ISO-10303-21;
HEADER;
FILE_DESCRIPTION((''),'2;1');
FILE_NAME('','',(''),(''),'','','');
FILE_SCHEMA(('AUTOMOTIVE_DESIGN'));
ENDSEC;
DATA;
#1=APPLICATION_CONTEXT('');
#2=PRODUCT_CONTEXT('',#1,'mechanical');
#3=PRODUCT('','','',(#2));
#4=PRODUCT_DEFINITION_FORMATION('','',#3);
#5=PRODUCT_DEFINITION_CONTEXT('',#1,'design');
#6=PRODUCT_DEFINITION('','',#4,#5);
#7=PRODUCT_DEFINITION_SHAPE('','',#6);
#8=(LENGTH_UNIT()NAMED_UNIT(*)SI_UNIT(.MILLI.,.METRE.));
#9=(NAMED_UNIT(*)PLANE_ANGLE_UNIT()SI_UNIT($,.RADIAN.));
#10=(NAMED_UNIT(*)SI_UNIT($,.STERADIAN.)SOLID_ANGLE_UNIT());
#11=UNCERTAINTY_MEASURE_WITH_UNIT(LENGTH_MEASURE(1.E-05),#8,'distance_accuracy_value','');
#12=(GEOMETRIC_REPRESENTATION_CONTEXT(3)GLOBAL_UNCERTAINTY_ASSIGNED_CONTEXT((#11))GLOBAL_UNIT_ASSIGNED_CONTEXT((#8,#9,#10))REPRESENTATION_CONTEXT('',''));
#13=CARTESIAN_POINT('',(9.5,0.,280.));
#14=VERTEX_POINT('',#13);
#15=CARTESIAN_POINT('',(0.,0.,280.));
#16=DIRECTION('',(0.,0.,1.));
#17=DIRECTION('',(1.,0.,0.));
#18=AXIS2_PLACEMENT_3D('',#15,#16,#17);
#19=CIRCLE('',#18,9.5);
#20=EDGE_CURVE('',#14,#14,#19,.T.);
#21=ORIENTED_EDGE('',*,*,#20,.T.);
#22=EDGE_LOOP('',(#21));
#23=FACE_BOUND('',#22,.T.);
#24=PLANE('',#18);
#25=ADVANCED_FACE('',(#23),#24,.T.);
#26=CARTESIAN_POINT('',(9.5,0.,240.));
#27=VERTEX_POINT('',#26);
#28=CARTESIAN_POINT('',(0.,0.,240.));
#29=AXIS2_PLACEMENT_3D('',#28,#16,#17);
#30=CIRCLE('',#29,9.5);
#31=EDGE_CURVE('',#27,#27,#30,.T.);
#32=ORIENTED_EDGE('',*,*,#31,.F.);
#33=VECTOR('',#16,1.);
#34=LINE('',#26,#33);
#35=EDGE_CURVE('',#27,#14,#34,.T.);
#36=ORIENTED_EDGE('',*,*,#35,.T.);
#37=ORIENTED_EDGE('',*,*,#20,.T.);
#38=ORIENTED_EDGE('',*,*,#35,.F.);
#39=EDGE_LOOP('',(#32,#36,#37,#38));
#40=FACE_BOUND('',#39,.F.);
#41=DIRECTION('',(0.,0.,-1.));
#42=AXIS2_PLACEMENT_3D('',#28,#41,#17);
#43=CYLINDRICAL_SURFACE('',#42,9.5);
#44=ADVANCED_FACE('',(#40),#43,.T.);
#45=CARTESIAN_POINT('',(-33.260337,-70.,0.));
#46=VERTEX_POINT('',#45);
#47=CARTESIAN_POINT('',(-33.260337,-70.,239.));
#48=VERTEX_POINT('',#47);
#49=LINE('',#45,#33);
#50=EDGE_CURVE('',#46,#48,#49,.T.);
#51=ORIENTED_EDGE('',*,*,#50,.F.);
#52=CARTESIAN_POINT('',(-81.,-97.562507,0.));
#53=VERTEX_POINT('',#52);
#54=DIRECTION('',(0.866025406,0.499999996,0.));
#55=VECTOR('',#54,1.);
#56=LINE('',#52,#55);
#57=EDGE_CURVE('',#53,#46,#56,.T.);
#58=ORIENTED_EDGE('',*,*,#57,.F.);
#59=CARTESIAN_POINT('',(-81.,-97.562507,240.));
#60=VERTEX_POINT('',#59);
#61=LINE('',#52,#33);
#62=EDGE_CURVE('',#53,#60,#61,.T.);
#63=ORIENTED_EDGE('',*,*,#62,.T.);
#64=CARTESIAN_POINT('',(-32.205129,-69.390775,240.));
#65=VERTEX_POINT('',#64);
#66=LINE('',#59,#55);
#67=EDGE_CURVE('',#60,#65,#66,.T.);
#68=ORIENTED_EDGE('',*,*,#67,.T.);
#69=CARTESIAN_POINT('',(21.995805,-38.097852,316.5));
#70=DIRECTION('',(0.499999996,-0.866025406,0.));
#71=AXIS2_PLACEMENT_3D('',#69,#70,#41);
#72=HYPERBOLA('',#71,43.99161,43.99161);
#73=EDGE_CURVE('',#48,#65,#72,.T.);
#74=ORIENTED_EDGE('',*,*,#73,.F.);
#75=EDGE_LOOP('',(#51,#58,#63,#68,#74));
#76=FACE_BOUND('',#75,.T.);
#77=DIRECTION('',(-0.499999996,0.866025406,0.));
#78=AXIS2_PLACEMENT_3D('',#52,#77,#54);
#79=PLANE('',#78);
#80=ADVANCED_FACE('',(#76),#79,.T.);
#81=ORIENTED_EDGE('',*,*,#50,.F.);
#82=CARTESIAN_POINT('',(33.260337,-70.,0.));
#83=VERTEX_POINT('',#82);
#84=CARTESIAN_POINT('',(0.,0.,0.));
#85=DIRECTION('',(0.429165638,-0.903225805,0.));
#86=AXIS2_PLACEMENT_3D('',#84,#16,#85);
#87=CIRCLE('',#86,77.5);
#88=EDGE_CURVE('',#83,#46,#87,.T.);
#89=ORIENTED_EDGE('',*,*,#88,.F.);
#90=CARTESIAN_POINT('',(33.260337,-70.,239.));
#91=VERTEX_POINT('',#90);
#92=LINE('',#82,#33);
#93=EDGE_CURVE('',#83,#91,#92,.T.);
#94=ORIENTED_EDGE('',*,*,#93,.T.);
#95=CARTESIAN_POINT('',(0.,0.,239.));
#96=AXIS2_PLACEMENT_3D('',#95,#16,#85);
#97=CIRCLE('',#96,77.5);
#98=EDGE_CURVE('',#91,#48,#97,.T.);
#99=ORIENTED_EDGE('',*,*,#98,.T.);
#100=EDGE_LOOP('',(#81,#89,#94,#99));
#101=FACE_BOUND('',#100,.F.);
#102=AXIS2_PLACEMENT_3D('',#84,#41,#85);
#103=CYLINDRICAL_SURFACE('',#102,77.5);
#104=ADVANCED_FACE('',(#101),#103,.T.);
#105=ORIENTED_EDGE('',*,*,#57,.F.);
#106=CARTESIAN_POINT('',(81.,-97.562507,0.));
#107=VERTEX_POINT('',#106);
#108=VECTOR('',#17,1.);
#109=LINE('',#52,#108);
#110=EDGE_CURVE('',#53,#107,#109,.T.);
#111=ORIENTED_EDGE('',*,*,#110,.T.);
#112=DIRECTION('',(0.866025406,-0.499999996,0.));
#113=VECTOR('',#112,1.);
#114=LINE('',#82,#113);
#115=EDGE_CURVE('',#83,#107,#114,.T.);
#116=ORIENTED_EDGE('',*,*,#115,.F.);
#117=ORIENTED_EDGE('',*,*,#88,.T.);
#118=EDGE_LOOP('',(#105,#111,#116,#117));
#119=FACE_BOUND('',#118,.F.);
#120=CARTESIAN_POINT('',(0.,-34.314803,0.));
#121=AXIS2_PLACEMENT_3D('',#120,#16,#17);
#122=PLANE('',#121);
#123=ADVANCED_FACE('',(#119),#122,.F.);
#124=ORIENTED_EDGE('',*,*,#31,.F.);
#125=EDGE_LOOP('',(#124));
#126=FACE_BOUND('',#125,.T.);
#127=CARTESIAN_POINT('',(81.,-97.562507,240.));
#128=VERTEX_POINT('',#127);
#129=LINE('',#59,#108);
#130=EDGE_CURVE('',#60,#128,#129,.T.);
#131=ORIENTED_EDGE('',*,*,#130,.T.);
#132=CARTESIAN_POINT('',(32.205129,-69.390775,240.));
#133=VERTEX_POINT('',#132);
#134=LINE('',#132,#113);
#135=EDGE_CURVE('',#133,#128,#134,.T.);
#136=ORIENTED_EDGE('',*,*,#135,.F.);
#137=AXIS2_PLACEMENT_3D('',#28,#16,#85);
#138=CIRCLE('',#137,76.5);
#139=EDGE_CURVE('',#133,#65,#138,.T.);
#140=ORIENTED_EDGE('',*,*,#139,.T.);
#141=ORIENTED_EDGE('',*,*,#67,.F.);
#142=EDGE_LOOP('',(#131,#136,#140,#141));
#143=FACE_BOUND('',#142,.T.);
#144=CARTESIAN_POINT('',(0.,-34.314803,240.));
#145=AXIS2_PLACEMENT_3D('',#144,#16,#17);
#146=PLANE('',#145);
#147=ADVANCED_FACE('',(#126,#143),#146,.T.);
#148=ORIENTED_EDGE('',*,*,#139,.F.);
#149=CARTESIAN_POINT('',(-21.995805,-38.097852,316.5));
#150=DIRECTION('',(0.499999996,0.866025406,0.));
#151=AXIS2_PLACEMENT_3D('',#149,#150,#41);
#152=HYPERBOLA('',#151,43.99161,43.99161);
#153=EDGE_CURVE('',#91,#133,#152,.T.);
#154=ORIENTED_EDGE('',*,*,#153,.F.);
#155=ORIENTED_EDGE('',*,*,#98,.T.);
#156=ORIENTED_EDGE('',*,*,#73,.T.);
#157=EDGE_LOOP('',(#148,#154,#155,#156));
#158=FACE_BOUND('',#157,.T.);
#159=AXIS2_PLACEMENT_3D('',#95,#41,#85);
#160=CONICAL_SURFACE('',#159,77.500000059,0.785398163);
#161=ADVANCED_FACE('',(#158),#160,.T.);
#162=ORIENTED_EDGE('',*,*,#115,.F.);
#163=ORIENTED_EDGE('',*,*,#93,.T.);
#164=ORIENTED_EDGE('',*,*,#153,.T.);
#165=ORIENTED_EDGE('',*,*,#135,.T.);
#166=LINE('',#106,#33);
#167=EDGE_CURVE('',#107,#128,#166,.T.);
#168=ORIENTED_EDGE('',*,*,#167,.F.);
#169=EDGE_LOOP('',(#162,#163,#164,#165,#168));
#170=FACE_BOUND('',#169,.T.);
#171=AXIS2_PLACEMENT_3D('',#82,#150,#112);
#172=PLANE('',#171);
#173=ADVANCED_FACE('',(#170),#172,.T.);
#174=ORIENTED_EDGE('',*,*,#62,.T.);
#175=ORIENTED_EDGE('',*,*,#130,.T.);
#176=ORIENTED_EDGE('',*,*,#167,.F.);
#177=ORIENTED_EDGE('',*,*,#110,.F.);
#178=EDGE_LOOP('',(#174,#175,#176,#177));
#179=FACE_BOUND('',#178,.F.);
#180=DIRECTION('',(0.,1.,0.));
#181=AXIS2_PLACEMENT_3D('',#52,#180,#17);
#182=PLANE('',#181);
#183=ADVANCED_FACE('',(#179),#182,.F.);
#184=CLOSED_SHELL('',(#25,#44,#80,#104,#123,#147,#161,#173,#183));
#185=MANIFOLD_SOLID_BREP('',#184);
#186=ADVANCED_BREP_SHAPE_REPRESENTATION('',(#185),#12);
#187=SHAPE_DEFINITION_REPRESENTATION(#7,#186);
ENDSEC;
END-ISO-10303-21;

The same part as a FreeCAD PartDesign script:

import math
import FreeCAD as App
import Part
import Sketcher
from FreeCAD import Vector
Q = App.Units.Quantity


def edges_at(feature, points):
    """Names of the edges that pass closest to the given points."""
    edges = feature.Shape.Edges
    near = lambda p: min(range(len(edges)), key=lambda i: edges[i].distToShape(Part.Vertex(*p))[0])
    return sorted({f"Edge{near(p) + 1}" for p in points})

doc = App.newDocument("Part")
body = doc.addObject("PartDesign::Body", "Body")

sketch1 = body.newObject("Sketcher::SketchObject", "Sketch")
sketch1.AttachmentSupport = (doc.getObject("XY_Plane"), [""])
sketch1.MapMode = "FlatFace"
sketch1.addGeometry(Part.ArcOfCircle(Part.Circle(Vector(0, 0, 0), Vector(0, 0, 1), 77.5), math.radians(-64.585379), math.radians(244.585379)), False)
sketch1.addGeometry(Part.LineSegment(Vector(-33.260337, -70, 0), Vector(-81, -97.562507, 0)), False)
sketch1.addGeometry(Part.LineSegment(Vector(-81, -97.562507, 0), Vector(81, -97.562507, 0)), False)
sketch1.addGeometry(Part.LineSegment(Vector(81, -97.562507, 0), Vector(33.260337, -70, 0)), False)
sketch1.addConstraint(Sketcher.Constraint("Coincident", 0, 2, 1, 1))
sketch1.addConstraint(Sketcher.Constraint("Coincident", 1, 2, 2, 1))
sketch1.addConstraint(Sketcher.Constraint("Coincident", 2, 2, 3, 1))
sketch1.addConstraint(Sketcher.Constraint("Coincident", 3, 2, 0, 1))
sketch1.addConstraint(Sketcher.Constraint("Horizontal", 2))
sketch1.addConstraint(Sketcher.Constraint("Coincident", 0, 3, -1, 1))
sketch1.addConstraint(Sketcher.Constraint("Horizontal", 0, 2, 3, 2))
sketch1.addConstraint(Sketcher.Constraint("Equal", 1, 3))
sketch1.addConstraint(Sketcher.Constraint("Radius", 0, 77.5))
sketch1.addConstraint(Sketcher.Constraint("DistanceX", 2, 1, 2, 2, 162.0))
sketch1.addConstraint(Sketcher.Constraint("Angle", 1, Q("-150 deg")))
sketch1.addConstraint(Sketcher.Constraint("DistanceY", 0, 2, -1, 1, 70.0))
pad1 = body.newObject("PartDesign::Pad", "Pad")
pad1.Profile = sketch1
pad1.Length = 240

sketch2 = body.newObject("Sketcher::SketchObject", "Sketch001")
sketch2.AttachmentSupport = (doc.getObject("XY_Plane"), [""])
sketch2.MapMode = "FlatFace"
sketch2.AttachmentOffset = App.Placement(Vector(0, 0, 240), App.Rotation())
sketch2.addGeometry(Part.Circle(Vector(0, 0, 0), Vector(0, 0, 1), 9.5), False)
sketch2.addConstraint(Sketcher.Constraint("Coincident", 0, 3, -1, 1))
sketch2.addConstraint(Sketcher.Constraint("Diameter", 0, 19.0))
pad2 = body.newObject("PartDesign::Pad", "Pad001")
pad2.Profile = sketch2
pad2.Length = 40
doc.recompute()

chamfer = body.newObject("PartDesign::Chamfer", "Chamfer")
chamfer.Base = (pad2, edges_at(pad2, [(0, 77.5, 240)]))
chamfer.Size = 1

doc.recompute()
